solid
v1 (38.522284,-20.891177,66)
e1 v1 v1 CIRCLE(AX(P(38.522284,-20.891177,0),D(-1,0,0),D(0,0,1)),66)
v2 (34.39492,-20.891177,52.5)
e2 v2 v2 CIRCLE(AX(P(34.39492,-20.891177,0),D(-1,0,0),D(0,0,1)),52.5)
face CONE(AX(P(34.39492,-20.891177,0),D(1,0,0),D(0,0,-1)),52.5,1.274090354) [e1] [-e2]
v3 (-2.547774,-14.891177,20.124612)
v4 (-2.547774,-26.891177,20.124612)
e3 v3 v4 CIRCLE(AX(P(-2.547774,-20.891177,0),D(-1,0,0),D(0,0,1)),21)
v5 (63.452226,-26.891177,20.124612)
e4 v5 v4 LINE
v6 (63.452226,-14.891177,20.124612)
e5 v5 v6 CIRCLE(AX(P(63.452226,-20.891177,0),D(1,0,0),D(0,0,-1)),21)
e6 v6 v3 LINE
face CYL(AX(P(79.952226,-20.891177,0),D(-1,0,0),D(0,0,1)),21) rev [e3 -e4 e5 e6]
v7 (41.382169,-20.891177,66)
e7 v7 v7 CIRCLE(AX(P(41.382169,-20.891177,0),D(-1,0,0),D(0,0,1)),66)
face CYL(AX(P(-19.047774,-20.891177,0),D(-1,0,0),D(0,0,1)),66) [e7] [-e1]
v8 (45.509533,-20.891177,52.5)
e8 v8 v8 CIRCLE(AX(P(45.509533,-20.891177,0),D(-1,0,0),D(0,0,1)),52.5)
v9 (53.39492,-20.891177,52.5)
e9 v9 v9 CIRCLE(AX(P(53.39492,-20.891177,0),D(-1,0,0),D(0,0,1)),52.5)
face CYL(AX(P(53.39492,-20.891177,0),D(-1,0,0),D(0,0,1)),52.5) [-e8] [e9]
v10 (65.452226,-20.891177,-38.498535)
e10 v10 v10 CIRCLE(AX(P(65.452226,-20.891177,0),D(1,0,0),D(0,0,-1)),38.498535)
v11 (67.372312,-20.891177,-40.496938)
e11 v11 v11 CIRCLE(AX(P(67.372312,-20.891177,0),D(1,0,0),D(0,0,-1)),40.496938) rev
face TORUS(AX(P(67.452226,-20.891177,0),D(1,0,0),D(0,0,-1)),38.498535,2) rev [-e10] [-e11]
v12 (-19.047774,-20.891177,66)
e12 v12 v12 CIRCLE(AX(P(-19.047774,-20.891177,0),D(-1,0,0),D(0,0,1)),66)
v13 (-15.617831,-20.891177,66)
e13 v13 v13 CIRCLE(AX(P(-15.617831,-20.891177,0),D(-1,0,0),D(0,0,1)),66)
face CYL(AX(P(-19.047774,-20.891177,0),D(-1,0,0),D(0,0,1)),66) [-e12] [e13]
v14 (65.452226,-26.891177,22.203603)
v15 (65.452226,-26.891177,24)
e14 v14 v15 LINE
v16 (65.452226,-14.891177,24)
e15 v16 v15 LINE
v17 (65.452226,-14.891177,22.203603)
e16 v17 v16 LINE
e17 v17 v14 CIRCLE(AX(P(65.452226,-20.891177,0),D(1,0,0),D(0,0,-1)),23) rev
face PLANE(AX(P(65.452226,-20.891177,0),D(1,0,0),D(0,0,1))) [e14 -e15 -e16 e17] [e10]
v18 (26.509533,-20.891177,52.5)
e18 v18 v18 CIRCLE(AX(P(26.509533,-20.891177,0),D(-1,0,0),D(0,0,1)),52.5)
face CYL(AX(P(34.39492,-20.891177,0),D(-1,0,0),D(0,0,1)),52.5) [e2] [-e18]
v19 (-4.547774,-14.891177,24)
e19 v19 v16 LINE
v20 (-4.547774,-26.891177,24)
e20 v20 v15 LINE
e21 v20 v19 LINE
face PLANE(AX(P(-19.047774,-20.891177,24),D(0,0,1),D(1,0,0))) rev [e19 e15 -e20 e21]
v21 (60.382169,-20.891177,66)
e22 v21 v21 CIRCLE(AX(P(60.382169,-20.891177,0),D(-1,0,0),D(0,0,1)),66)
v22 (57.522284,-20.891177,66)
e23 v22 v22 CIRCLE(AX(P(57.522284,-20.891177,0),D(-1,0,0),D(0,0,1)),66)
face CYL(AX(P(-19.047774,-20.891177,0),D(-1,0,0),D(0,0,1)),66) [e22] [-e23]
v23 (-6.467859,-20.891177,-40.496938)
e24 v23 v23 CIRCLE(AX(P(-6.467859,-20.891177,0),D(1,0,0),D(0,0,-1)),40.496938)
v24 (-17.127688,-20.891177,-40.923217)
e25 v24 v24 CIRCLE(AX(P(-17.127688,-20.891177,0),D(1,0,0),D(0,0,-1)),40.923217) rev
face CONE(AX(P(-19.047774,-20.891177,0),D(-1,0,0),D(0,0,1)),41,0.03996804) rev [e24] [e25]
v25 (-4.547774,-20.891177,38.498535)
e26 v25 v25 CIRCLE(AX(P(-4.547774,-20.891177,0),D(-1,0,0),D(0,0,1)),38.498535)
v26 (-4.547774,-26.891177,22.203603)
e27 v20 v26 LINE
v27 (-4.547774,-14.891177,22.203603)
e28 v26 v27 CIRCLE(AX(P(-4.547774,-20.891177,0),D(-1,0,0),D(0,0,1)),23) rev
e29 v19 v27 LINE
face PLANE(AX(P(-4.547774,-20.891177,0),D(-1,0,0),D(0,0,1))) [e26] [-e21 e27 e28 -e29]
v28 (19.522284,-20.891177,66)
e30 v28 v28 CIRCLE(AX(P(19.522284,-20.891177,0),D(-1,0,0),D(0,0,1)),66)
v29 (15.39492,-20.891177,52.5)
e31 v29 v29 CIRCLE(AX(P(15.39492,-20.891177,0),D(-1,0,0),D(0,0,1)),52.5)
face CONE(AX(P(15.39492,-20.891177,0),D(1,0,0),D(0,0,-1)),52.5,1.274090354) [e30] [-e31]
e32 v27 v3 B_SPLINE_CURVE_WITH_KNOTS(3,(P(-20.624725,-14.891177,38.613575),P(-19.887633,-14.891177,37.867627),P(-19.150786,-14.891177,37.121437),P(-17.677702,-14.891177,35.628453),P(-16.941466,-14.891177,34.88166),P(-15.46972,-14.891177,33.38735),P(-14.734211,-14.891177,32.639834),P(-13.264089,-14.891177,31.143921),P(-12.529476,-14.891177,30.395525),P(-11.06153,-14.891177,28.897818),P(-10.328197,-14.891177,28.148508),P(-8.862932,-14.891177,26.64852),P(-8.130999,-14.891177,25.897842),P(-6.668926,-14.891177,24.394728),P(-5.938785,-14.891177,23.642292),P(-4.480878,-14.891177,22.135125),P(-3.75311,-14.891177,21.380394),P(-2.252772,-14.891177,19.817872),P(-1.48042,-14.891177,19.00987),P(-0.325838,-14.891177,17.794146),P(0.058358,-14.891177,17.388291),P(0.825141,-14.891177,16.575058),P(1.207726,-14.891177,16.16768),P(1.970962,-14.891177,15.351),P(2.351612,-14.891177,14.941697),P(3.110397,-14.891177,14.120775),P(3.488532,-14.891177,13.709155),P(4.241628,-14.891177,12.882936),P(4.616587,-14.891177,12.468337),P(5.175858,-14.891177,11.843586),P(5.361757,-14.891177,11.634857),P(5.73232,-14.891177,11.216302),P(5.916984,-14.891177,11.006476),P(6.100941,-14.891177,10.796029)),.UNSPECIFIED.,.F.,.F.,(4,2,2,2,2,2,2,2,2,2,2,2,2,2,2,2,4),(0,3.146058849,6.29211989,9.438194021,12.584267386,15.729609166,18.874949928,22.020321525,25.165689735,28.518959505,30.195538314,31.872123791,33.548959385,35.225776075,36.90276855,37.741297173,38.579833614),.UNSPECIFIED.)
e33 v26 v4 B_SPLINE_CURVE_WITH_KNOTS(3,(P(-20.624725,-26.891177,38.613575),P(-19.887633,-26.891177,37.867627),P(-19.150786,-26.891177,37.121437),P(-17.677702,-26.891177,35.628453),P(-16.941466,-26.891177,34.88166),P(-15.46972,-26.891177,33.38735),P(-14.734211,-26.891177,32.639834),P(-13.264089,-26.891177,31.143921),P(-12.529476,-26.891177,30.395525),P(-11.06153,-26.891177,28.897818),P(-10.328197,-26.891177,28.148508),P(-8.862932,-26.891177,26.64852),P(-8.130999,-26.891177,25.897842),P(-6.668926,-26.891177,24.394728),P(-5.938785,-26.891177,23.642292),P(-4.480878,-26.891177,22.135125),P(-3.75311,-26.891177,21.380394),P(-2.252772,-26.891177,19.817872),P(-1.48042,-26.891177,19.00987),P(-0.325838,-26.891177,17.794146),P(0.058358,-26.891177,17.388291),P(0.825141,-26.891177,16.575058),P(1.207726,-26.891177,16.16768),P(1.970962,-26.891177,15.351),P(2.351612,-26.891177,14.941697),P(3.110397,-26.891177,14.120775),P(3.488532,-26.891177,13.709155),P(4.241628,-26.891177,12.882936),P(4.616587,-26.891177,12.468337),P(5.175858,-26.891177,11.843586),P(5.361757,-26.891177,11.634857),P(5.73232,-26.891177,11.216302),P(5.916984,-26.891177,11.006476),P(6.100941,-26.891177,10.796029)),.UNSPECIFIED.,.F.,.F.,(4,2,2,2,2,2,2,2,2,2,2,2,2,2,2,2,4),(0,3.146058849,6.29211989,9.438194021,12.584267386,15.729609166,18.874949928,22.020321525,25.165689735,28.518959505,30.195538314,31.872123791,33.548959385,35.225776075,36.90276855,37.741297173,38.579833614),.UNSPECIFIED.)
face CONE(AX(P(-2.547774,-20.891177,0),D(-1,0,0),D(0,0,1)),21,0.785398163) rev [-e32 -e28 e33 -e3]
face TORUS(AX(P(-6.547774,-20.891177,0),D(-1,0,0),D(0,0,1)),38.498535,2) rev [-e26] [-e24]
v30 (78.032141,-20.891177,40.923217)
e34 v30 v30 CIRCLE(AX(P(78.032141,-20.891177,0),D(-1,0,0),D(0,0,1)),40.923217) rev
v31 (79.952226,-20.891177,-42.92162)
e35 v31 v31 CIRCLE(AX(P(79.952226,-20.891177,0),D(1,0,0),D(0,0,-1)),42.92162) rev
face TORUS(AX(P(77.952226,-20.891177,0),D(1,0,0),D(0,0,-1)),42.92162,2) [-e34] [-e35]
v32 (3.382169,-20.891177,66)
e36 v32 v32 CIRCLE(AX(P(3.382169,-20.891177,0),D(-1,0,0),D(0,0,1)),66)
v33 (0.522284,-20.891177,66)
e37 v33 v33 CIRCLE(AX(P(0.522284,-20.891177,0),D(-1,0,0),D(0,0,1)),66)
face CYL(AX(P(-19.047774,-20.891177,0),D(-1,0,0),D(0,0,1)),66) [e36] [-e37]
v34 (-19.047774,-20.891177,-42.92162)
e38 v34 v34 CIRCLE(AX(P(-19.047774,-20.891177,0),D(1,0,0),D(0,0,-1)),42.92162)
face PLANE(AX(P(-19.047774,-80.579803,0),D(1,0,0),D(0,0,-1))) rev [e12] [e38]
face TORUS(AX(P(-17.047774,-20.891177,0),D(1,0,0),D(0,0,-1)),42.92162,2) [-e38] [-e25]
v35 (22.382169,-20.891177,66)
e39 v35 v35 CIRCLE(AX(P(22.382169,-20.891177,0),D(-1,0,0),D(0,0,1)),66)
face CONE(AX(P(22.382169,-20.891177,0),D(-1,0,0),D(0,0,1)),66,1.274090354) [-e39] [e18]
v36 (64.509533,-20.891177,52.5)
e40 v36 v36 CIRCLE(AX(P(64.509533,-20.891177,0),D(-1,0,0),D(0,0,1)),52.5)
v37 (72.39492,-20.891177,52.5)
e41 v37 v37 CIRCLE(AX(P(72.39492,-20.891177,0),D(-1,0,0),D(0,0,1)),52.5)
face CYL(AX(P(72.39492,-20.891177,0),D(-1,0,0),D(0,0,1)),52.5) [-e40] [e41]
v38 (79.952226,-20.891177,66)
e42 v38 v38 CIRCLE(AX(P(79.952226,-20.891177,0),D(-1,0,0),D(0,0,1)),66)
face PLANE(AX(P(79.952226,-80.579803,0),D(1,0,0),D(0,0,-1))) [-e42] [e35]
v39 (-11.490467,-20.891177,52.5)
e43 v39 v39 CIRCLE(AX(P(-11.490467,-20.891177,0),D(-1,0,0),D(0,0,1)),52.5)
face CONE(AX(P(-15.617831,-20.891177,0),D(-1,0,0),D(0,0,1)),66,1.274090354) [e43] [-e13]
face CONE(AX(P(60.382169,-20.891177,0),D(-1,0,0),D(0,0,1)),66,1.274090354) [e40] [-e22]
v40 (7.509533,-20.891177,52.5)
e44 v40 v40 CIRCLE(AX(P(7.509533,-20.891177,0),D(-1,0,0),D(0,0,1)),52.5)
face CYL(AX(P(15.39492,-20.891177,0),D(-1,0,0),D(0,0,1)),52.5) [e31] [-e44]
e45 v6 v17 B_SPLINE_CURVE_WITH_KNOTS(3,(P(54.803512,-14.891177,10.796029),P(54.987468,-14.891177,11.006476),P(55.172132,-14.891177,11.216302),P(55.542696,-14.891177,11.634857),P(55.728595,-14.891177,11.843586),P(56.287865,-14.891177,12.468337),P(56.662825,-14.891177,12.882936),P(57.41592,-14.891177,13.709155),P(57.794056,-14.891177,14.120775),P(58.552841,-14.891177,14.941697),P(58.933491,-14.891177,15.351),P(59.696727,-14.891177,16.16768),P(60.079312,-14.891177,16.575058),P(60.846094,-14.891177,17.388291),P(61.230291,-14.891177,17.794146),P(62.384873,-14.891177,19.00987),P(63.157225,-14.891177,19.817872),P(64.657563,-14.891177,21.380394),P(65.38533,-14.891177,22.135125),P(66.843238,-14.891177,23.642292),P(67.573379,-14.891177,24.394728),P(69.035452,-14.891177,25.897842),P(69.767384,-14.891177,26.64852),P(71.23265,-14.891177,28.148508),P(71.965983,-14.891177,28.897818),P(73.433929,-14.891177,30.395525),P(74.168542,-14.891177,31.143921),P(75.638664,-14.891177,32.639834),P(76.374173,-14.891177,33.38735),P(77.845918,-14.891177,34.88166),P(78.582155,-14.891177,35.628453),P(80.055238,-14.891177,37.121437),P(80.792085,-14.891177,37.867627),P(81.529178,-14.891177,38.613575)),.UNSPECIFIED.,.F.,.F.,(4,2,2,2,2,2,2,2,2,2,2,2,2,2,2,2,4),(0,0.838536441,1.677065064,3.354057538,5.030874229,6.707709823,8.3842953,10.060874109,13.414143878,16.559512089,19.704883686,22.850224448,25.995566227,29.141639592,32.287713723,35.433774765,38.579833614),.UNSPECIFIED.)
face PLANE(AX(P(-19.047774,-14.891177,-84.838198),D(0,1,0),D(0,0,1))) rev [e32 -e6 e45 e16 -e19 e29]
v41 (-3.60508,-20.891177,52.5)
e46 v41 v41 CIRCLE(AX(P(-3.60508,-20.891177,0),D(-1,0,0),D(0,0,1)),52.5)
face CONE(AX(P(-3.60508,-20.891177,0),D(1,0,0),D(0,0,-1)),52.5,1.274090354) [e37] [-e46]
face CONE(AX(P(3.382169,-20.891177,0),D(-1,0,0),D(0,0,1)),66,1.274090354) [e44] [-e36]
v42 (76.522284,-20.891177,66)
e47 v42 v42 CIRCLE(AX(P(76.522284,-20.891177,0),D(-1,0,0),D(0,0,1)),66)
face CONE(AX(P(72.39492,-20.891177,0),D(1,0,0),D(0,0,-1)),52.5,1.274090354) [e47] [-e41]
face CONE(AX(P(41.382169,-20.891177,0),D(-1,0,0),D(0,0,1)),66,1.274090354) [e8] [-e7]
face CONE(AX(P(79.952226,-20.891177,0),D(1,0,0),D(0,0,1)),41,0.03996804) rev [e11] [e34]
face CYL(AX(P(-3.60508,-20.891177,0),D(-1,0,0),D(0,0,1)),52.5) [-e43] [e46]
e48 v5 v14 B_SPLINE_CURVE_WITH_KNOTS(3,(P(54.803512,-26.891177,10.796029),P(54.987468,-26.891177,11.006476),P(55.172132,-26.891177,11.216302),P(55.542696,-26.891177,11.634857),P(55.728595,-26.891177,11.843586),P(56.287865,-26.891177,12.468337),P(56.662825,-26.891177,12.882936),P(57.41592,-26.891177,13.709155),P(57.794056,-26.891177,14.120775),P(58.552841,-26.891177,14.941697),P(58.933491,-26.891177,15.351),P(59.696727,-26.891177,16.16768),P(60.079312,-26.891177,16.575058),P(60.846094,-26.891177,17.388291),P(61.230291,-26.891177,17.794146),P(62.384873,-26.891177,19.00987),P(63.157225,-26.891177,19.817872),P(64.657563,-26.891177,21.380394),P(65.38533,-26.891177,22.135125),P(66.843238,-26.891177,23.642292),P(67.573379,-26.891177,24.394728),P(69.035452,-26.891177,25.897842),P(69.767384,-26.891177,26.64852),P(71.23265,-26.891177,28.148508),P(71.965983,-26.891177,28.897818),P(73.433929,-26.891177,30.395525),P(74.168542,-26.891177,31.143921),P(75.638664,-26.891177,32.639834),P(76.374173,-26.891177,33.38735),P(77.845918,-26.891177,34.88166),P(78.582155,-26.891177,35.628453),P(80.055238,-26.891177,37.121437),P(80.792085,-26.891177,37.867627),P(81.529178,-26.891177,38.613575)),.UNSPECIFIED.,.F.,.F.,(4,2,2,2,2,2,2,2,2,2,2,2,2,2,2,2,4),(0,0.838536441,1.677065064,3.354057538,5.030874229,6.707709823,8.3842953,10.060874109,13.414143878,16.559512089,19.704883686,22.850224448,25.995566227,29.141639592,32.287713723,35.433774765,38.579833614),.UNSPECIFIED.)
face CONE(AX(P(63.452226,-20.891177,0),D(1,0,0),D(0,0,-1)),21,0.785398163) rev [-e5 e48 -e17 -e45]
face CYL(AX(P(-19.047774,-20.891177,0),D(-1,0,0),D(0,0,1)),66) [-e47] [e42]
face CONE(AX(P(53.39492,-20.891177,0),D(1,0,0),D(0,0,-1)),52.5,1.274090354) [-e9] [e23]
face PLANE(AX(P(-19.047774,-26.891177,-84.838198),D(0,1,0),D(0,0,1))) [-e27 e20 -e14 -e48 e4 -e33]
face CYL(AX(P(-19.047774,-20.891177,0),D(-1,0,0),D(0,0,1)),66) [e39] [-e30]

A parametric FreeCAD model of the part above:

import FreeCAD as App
import Part
import Sketcher

V = App.Vector
Q = App.Units.Quantity


def edges_at(feature, points):
    """Names of the edges that pass closest to the given points."""
    edges = feature.Shape.Edges
    near = lambda p: min(range(len(edges)), key=lambda i: edges[i].distToShape(Part.Vertex(*p))[0])
    return sorted({f"Edge{near(p) + 1}" for p in points})

doc = App.newDocument("Part")
body = doc.addObject("PartDesign::Body", "Body")

# Sketch on XY plane
sketch1 = body.newObject("Sketcher::SketchObject", "Sketch")
sketch1.AttachmentSupport = (doc.getObject("XY_Plane"), [""])
sketch1.MapMode = "FlatFace"
sketch1.addGeometry(Part.LineSegment(V(-19.047774, 45.108823, 0), V(-19.047774, -20.891177, 0)), False)
sketch1.addGeometry(Part.LineSegment(V(-19.047774, -20.891177, 0), V(79.952226, -20.891177, 0)), False)
sketch1.addGeometry(Part.LineSegment(V(79.952226, -20.891177, 0), V(79.952226, 45.108823, 0)), False)
sketch1.addGeometry(Part.LineSegment(V(79.952226, 45.108823, 0), V(-19.047774, 45.108823, 0)), False)
sketch1.addGeometry(Part.LineSegment(V(-19.047774, -20.891177, 0), V(79.952226, -20.891177, 0)), True)  # axis
sketch1.addConstraint(Sketcher.Constraint("Coincident", 0, 2, 1, 1))
sketch1.addConstraint(Sketcher.Constraint("Coincident", 1, 2, 2, 1))
sketch1.addConstraint(Sketcher.Constraint("Coincident", 2, 2, 3, 1))
sketch1.addConstraint(Sketcher.Constraint("Coincident", 3, 2, 0, 1))
sketch1.addConstraint(Sketcher.Constraint("Vertical", 0))
sketch1.addConstraint(Sketcher.Constraint("Horizontal", 1))
sketch1.addConstraint(Sketcher.Constraint("Vertical", 2))
sketch1.addConstraint(Sketcher.Constraint("Horizontal", 3))
sketch1.addConstraint(Sketcher.Constraint("Horizontal", 4))
sketch1.addConstraint(Sketcher.Constraint("Coincident", 4, 1, 0, 2))
sketch1.addConstraint(Sketcher.Constraint("Vertical", 2, 2, 4, 2))
sketch1.addConstraint(Sketcher.Constraint("DistanceX", 1, 1, 1, 2, Q("99 mm")))
sketch1.addConstraint(Sketcher.Constraint("DistanceY", 0, 2, 0, 1, Q("66 mm")))
sketch1.addConstraint(Sketcher.Constraint("DistanceX", 0, 2, -1, 1, Q("19.047774 mm")))
sketch1.addConstraint(Sketcher.Constraint("DistanceY", 0, 2, -1, 1, Q("20.891177 mm")))
revolution = body.newObject("PartDesign::Revolution", "Revolution")
revolution.Profile = sketch1
revolution.ReferenceAxis = (sketch1, ["Axis0"])
revolution.Angle = 360

# Sketch on YZ plane
sketch2 = body.newObject("Sketcher::SketchObject", "Sketch001")
sketch2.AttachmentSupport = (doc.getObject("YZ_Plane"), [""])
sketch2.MapMode = "FlatFace"
sketch2.AttachmentOffset = App.Placement(V(0, 0, -19.047774), App.Rotation())
sketch2.addGeometry(Part.Circle(V(-20.891177, 0, 0), V(0, 0, 1), 41), False)
sketch2.addConstraint(Sketcher.Constraint("PointOnObject", 0, 3, -1))
sketch2.addConstraint(Sketcher.Constraint("Diameter", 0, Q("82 mm")))
sketch2.addConstraint(Sketcher.Constraint("DistanceX", 0, 3, -1, 1, Q("20.891177 mm")))
pocket1 = body.newObject("PartDesign::Pocket", "Pocket")
pocket1.Profile = sketch2
pocket1.Length = 14.5
pocket1.Reversed = True
pocket1.TaperAngle = -2.29
doc.recompute()

datumplane = body.newObject("PartDesign::Plane", "DatumPlane")
datumplane.AttachmentSupport = (doc.getObject("YZ_Plane"), [""])
datumplane.MapMode = "FlatFace"
datumplane.AttachmentOffset = App.Placement(V(0, 0, 30.452226), App.Rotation())
mirrored = body.newObject("PartDesign::Mirrored", "Mirrored")
mirrored.Originals = [pocket1]
mirrored.MirrorPlane = (datumplane, [""])
body.Tip = mirrored
doc.recompute()

fillet = body.newObject("PartDesign::Fillet", "Fillet")
fillet.Base = (mirrored, edges_at(mirrored, [
    (-4.548, -20.891, -40.42),
    (-19.048, -20.891, -41),
    (79.952, -20.891, -41),
    (65.452, -20.891, -40.42),
]))
fillet.Radius = 2

# Sketch on XY plane
sketch3 = body.newObject("Sketcher::SketchObject", "Sketch002")
sketch3.AttachmentSupport = (doc.getObject("XY_Plane"), [""])
sketch3.MapMode = "FlatFace"
sketch3.addGeometry(Part.LineSegment(V(64.509533, 31.608823, 0), V(72.39492, 31.608823, 0)), False)
sketch3.addGeometry(Part.LineSegment(V(72.39492, 31.608823, 0), V(76.522284, 45.108823, 0)), False)
sketch3.addGeometry(Part.LineSegment(V(76.522284, 45.108823, 0), V(60.382169, 45.108823, 0)), False)
sketch3.addGeometry(Part.LineSegment(V(60.382169, 45.108823, 0), V(64.509533, 31.608823, 0)), False)
sketch3.addConstraint(Sketcher.Constraint("Coincident", 0, 2, 1, 1))
sketch3.addConstraint(Sketcher.Constraint("Coincident", 1, 2, 2, 1))
sketch3.addConstraint(Sketcher.Constraint("Coincident", 2, 2, 3, 1))
sketch3.addConstraint(Sketcher.Constraint("Coincident", 3, 2, 0, 1))
sketch3.addConstraint(Sketcher.Constraint("Horizontal", 0))
sketch3.addConstraint(Sketcher.Constraint("Horizontal", 2))
sketch3.addConstraint(Sketcher.Constraint("Equal", 1, 3))
sketch3.addConstraint(Sketcher.Constraint("Angle", 1, Q("73 deg")))
sketch3.addConstraint(Sketcher.Constraint("DistanceY", 0, 2, 1, 2, Q("13.5 mm")))
sketch3.addConstraint(Sketcher.Constraint("DistanceX", 0, 1, 0, 2, Q("7.885386 mm")))
sketch3.addConstraint(Sketcher.Constraint("DistanceX", -1, 1, 0, 2, Q("72.39492 mm")))
sketch3.addConstraint(Sketcher.Constraint("DistanceY", -1, 1, 0, 2, Q("31.608823 mm")))

# Sketch on YZ plane
sketch4 = body.newObject("Sketcher::SketchObject", "Sketch003")
sketch4.AttachmentSupport = (doc.getObject("YZ_Plane"), [""])
sketch4.MapMode = "FlatFace"
sketch4.AttachmentOffset = App.Placement(V(0, 0, 72.39492), App.Rotation())
sketch4.addGeometry(Part.Circle(V(-20.891177, 0, 0), V(0, 0, 1), 52.5), False)
sketch4.addConstraint(Sketcher.Constraint("PointOnObject", 0, 3, -1))
sketch4.addConstraint(Sketcher.Constraint("Diameter", 0, Q("105 mm")))
sketch4.addConstraint(Sketcher.Constraint("DistanceX", 0, 3, -1, 1, Q("20.891177 mm")))
doc.recompute()

subtractivepipe = body.newObject("PartDesign::SubtractivePipe", "SubtractivePipe")
subtractivepipe.Profile = sketch3
subtractivepipe.Spine = (sketch4, ["Edge1"])
doc.recompute()

linearpattern = body.newObject("PartDesign::LinearPattern", "LinearPattern")
linearpattern.Originals = [subtractivepipe]
linearpattern.Direction = (doc.getObject("X_Axis"), [""])
linearpattern.Mode = "offset"
linearpattern.Offset = 19
linearpattern.Occurrences = 3
linearpattern.Reversed = True
body.Tip = linearpattern
doc.recompute()

linearpattern2 = body.newObject("PartDesign::LinearPattern", "LinearPattern001")
linearpattern2.Originals = [subtractivepipe]
linearpattern2.Direction = (doc.getObject("X_Axis"), [""])
linearpattern2.Mode = "offset"
linearpattern2.Offset = 57
linearpattern2.Occurrences = 2
linearpattern2.Reversed = True
body.Tip = linearpattern2
doc.recompute()

linearpattern3 = body.newObject("PartDesign::LinearPattern", "LinearPattern002")
linearpattern3.Originals = [subtractivepipe]
linearpattern3.Direction = (doc.getObject("X_Axis"), [""])
linearpattern3.Mode = "offset"
linearpattern3.Offset = 76
linearpattern3.Occurrences = 2
linearpattern3.Reversed = True
body.Tip = linearpattern3

# Sketch on YZ plane
sketch5 = body.newObject("Sketcher::SketchObject", "Sketch004")
sketch5.AttachmentSupport = (doc.getObject("YZ_Plane"), [""])
sketch5.MapMode = "FlatFace"
sketch5.AttachmentOffset = App.Placement(V(0, 0, -4.547774), App.Rotation())
sketch5.addGeometry(Part.Circle(V(-20.891177, 0, 0), V(0, 0, 1), 21), False)
sketch5.addConstraint(Sketcher.Constraint("PointOnObject", 0, 3, -1))
sketch5.addConstraint(Sketcher.Constraint("Diameter", 0, Q("42 mm")))
sketch5.addConstraint(Sketcher.Constraint("DistanceX", 0, 3, -1, 1, Q("20.891177 mm")))
pocket2 = body.newObject("PartDesign::Pocket", "Pocket001")
pocket2.Profile = sketch5
pocket2.Type = "ThroughAll"
pocket2.Reversed = True
doc.recompute()

chamfer = body.newObject("PartDesign::Chamfer", "Chamfer")
chamfer.Base = (pocket2, edges_at(pocket2, [(65.452, -20.891, -21), (-4.548, -20.891, -21)]))
chamfer.Size = 2

# Sketch on YZ plane
sketch6 = body.newObject("Sketcher::SketchObject", "Sketch005")
sketch6.AttachmentSupport = (doc.getObject("YZ_Plane"), [""])
sketch6.MapMode = "FlatFace"
sketch6.AttachmentOffset = App.Placement(V(0, 0, 65.452226), App.Rotation())
sketch6.addGeometry(Part.LineSegment(V(-14.891177, 24, 0), V(-26.891177, 24, 0)), False)
sketch6.addGeometry(Part.LineSegment(V(-26.891177, 24, 0), V(-26.891177, 0, 0)), False)
sketch6.addGeometry(Part.LineSegment(V(-26.891177, 0, 0), V(-14.891177, 0, 0)), False)
sketch6.addGeometry(Part.LineSegment(V(-14.891177, 0, 0), V(-14.891177, 24, 0)), False)
sketch6.addConstraint(Sketcher.Constraint("Coincident", 0, 2, 1, 1))
sketch6.addConstraint(Sketcher.Constraint("Coincident", 1, 2, 2, 1))
sketch6.addConstraint(Sketcher.Constraint("Coincident", 2, 2, 3, 1))
sketch6.addConstraint(Sketcher.Constraint("Coincident", 3, 2, 0, 1))
sketch6.addConstraint(Sketcher.Constraint("Horizontal", 0))
sketch6.addConstraint(Sketcher.Constraint("Vertical", 1))
sketch6.addConstraint(Sketcher.Constraint("Horizontal", 2))
sketch6.addConstraint(Sketcher.Constraint("Vertical", 3))
sketch6.addConstraint(Sketcher.Constraint("PointOnObject", 1, 2, -1))
sketch6.addConstraint(Sketcher.Constraint("DistanceX", 0, 2, 0, 1, Q("12 mm")))
sketch6.addConstraint(Sketcher.Constraint("DistanceY", 1, 2, 1, 1, Q("24 mm")))
sketch6.addConstraint(Sketcher.Constraint("DistanceX", 0, 2, -1, 1, Q("26.891177 mm")))
pocket3 = body.newObject("PartDesign::Pocket", "Pocket002")
pocket3.Profile = sketch6
pocket3.Type = "ThroughAll"

doc.recompute()
